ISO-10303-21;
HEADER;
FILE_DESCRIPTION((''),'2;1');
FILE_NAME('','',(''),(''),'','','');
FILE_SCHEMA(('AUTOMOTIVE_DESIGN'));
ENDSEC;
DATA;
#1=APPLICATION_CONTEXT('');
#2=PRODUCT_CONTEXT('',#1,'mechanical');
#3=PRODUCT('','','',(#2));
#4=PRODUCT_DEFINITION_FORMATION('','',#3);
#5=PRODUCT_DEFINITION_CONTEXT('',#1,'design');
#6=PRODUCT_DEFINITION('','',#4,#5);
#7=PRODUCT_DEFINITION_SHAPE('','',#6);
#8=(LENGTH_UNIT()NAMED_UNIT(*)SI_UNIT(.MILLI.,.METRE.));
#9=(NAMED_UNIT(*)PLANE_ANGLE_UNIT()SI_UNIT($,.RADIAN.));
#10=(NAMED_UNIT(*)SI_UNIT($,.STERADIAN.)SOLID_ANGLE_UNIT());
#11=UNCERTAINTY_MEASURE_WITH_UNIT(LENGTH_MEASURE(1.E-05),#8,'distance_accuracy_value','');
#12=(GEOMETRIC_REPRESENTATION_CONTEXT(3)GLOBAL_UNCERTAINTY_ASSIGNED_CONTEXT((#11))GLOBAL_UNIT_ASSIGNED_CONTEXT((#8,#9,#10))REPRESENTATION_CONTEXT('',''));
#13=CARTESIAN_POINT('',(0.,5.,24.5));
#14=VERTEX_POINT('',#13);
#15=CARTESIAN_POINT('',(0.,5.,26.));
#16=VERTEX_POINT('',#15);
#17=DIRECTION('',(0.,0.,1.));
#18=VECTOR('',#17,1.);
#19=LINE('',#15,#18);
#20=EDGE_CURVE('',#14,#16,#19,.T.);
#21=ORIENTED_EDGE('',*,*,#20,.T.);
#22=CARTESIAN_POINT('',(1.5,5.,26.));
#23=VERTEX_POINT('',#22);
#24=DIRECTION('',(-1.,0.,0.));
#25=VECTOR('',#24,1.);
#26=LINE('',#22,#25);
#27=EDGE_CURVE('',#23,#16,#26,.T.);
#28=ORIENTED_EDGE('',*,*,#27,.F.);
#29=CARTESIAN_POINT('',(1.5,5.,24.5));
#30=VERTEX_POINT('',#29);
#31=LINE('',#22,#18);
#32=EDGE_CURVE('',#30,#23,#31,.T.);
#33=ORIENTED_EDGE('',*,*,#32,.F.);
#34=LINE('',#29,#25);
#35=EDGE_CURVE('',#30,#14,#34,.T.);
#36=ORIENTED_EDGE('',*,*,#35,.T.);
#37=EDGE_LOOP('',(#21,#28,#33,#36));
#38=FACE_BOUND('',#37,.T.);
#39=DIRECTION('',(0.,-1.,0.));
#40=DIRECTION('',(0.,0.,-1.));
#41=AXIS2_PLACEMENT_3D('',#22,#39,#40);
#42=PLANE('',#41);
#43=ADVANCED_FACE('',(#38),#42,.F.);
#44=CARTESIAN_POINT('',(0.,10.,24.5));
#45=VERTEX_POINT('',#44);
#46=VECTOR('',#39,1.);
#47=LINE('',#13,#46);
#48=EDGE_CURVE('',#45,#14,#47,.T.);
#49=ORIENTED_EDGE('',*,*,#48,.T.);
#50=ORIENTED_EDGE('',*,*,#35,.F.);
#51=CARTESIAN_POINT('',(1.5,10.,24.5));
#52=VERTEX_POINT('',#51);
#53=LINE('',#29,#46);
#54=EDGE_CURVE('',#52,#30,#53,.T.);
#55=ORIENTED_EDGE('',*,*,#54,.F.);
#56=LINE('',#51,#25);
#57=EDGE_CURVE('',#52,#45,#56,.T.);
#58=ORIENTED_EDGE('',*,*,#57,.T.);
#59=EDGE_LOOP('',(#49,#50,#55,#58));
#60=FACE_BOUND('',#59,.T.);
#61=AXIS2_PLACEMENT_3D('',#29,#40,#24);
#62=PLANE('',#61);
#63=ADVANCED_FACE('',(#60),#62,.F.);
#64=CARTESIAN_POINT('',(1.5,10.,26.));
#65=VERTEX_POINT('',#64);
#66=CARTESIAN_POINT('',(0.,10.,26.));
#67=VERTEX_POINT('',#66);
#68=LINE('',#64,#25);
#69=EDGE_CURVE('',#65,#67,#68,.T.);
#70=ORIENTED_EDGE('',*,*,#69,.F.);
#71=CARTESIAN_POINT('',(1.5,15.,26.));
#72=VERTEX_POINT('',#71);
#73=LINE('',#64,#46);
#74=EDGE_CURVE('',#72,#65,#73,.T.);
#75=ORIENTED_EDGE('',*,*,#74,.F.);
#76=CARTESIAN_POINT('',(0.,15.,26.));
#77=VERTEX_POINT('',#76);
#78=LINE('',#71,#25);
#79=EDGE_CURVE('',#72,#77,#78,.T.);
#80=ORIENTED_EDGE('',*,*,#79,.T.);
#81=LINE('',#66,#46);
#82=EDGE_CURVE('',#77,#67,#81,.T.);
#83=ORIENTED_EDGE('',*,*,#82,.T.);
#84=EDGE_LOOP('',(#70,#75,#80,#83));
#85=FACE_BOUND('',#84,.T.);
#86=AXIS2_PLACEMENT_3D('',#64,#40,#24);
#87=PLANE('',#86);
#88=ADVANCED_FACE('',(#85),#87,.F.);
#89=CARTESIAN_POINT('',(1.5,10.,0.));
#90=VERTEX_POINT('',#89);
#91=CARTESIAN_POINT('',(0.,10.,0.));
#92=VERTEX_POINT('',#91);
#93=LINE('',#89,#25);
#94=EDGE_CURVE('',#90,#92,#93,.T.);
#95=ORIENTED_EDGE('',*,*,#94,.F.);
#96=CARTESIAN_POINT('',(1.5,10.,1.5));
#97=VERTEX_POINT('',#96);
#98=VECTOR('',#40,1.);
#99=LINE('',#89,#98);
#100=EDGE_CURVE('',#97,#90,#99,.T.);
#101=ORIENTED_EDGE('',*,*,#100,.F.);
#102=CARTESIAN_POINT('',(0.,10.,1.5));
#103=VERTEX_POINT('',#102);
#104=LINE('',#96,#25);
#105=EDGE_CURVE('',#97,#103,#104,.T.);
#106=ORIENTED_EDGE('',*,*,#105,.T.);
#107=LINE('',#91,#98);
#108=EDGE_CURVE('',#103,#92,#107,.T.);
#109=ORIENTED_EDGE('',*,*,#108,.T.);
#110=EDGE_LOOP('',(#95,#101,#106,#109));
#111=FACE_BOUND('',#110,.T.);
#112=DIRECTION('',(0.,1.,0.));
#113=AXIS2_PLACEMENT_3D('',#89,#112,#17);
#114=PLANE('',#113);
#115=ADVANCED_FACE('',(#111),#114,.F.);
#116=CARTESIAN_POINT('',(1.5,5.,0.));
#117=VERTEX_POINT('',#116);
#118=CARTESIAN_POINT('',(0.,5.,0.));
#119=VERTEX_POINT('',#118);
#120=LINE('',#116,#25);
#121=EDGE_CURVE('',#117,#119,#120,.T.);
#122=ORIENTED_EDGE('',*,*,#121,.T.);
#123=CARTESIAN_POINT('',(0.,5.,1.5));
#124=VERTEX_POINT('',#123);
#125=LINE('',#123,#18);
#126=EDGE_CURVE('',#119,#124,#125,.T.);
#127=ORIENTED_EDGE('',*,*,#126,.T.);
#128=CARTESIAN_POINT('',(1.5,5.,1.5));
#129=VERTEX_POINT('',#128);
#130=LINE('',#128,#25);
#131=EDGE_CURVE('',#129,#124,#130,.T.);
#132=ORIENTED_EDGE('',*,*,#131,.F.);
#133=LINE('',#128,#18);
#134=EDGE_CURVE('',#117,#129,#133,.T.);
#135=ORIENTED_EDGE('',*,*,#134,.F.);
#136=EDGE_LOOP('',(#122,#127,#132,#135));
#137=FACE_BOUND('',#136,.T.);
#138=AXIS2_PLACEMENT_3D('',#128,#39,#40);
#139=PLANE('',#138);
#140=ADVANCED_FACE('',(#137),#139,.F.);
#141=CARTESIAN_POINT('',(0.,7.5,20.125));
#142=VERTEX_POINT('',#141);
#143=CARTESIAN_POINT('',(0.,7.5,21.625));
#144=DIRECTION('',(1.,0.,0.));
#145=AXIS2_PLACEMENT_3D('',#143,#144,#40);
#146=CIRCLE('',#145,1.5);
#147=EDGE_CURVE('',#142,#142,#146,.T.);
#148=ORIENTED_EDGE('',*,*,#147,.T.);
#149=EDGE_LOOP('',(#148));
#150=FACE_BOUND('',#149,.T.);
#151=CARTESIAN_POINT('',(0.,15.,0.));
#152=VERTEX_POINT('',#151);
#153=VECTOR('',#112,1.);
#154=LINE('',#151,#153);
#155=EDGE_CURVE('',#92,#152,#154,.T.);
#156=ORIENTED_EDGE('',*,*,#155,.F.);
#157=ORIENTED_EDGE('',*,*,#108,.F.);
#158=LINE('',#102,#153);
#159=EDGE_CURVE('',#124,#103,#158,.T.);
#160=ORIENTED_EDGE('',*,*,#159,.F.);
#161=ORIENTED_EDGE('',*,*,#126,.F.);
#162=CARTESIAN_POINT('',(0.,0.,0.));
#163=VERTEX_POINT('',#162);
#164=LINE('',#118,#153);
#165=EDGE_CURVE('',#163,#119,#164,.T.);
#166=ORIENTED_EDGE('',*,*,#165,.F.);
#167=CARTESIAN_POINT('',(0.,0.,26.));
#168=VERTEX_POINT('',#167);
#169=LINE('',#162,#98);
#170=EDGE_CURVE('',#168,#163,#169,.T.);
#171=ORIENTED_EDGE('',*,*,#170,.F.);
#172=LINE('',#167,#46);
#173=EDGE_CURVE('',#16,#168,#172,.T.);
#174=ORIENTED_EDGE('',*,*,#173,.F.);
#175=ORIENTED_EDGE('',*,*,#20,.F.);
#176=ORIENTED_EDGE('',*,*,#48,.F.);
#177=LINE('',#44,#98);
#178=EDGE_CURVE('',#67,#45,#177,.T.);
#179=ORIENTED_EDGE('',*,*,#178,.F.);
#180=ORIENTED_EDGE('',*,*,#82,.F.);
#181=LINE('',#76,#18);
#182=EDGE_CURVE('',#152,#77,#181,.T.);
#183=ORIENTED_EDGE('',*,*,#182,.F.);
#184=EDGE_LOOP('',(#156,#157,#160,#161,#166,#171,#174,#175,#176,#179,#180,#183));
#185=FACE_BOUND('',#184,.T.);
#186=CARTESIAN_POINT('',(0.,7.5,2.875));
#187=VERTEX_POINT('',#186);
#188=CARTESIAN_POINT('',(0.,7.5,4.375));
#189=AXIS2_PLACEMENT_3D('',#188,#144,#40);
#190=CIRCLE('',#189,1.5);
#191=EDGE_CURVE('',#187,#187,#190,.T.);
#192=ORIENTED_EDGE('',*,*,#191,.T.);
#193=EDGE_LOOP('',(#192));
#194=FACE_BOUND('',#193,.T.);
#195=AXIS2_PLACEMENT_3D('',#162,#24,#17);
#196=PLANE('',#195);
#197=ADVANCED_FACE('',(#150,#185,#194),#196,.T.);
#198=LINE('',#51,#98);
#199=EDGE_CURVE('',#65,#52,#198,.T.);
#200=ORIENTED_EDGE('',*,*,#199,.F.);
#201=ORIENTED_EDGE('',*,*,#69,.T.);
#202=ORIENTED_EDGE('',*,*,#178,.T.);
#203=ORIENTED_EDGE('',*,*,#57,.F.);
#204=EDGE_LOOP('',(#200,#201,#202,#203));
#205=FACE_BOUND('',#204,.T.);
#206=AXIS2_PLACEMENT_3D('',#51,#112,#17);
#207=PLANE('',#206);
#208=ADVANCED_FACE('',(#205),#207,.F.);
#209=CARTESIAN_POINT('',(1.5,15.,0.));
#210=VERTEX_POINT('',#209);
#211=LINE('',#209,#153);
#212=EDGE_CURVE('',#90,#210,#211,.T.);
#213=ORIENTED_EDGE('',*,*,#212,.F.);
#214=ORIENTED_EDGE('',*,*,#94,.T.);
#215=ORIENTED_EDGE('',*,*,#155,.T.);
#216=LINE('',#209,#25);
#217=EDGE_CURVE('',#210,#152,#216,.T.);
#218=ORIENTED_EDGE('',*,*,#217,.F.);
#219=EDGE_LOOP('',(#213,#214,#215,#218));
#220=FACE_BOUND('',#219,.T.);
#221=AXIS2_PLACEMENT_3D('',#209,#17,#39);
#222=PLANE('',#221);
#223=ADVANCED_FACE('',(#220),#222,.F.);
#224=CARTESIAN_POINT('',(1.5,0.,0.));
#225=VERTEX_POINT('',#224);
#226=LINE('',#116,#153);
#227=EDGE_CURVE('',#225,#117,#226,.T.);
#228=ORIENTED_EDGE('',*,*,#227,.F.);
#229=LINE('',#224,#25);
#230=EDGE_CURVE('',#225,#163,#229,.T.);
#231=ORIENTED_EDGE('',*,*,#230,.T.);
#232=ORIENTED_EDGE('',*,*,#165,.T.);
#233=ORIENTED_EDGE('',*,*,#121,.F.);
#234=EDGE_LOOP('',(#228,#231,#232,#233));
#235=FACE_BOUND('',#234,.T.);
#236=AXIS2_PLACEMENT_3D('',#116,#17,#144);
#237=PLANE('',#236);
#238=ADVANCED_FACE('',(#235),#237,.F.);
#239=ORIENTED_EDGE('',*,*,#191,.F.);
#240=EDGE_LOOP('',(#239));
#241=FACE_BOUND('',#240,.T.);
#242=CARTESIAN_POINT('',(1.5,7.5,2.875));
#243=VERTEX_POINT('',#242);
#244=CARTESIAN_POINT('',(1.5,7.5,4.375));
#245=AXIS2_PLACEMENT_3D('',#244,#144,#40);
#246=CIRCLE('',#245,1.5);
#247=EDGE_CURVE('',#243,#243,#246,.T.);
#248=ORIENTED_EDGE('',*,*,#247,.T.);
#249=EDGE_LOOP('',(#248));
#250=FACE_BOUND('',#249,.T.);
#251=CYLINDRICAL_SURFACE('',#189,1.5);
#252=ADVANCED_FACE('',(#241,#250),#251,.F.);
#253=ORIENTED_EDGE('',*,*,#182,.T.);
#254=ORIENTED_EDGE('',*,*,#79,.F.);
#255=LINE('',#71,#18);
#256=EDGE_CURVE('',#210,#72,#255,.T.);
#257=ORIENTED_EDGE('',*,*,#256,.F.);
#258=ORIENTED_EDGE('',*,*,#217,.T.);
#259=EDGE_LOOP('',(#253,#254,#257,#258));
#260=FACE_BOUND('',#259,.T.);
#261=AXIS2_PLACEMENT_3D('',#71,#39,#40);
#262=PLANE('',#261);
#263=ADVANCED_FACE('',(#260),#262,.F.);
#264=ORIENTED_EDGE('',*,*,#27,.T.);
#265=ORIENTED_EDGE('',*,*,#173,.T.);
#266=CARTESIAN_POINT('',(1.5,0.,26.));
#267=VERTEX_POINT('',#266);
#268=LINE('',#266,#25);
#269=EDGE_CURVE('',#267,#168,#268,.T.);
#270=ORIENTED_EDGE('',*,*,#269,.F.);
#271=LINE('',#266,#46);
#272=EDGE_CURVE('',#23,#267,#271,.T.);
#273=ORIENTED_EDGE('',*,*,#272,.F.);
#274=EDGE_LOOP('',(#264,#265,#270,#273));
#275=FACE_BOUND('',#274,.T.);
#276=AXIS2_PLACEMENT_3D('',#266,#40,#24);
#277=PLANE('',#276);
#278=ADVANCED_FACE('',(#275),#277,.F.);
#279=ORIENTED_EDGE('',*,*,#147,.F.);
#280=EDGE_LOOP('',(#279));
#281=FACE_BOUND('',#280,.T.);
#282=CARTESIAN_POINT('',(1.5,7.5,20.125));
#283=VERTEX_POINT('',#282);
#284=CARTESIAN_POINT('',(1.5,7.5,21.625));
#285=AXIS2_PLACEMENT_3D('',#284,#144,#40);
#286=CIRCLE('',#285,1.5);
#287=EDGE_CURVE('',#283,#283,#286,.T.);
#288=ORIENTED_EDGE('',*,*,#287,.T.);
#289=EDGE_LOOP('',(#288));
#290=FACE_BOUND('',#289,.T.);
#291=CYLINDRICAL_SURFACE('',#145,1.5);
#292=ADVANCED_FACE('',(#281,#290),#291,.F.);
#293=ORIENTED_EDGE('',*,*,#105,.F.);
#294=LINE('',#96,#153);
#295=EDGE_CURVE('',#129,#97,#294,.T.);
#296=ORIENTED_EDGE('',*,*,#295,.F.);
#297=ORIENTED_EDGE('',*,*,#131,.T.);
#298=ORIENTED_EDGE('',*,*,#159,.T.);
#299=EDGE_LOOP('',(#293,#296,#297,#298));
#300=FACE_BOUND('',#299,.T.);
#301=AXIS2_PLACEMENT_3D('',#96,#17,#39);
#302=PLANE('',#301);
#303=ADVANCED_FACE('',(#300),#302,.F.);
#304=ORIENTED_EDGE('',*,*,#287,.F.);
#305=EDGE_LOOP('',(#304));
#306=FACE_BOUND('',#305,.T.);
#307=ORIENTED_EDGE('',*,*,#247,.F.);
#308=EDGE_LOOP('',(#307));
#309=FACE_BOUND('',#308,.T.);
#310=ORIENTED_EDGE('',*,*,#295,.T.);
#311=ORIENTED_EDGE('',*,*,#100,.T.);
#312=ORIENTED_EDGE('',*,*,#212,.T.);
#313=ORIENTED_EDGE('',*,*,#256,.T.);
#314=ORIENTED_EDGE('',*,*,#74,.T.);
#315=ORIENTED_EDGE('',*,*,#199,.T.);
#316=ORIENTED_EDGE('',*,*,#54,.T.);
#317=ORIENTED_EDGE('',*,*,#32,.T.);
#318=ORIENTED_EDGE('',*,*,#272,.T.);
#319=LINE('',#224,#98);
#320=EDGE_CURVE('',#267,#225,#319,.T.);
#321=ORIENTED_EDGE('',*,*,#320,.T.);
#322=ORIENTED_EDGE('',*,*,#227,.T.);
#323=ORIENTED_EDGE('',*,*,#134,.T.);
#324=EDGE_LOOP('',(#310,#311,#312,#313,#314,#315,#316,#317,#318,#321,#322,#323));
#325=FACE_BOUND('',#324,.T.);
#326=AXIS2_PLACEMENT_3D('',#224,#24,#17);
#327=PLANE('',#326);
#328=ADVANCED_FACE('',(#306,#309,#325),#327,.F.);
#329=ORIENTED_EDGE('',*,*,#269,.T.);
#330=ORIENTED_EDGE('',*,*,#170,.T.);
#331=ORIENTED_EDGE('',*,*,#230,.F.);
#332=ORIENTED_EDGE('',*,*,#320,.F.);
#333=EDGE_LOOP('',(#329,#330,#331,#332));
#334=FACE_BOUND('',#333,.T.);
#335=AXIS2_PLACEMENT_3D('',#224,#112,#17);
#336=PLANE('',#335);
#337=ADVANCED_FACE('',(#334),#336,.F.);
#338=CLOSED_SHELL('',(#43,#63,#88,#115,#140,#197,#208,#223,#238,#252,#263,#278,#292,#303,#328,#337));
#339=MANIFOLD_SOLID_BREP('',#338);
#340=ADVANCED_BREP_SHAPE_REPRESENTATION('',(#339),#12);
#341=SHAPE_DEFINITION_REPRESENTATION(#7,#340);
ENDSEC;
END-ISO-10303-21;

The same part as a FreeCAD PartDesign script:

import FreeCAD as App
import Part
import Sketcher

V = App.Vector


def add_polygon(sketch, points):
    """Adds a closed chain of lines whose ends are joined by coincident constraints."""
    first, n = sketch.GeometryCount, len(points)
    for a, b in zip(points, points[1:] + points[:1]):
        sketch.addGeometry(Part.LineSegment(App.Vector(*a, 0), App.Vector(*b, 0)), False)
    for i in range(n):
        sketch.addConstraint(Sketcher.Constraint("Coincident", first + i, 2, first + (i + 1) % n, 1))

doc = App.newDocument("Part")
body = doc.addObject("PartDesign::Body", "Body")

sketch1 = doc.addObject("Sketcher::SketchObject", "Sketch")
body.addObject(sketch1)
sketch1.AttachmentSupport = (doc.YZ_Plane, [""])
sketch1.MapMode = "FlatFace"
add_polygon(sketch1, [(0, 26), (0, 0), (5, 0), (5, 1.5), (10, 1.5), (10, 0), (15, 0), (15, 26), (10, 26), (10, 24.5), (5, 24.5), (5, 26)])
sketch1.addConstraint([
    Sketcher.Constraint("Vertical", 0),
    Sketcher.Constraint("Horizontal", 1),
    Sketcher.Constraint("Vertical", 2),
    Sketcher.Constraint("Horizontal", 3),
    Sketcher.Constraint("Vertical", 4),
    Sketcher.Constraint("Horizontal", 5),
    Sketcher.Constraint("Vertical", 6),
    Sketcher.Constraint("Horizontal", 7),
    Sketcher.Constraint("Vertical", 8),
    Sketcher.Constraint("Horizontal", 9),
    Sketcher.Constraint("Vertical", 10),
    Sketcher.Constraint("Horizontal", 11),
    Sketcher.Constraint("Coincident", 0, 2, -1, 1),
    Sketcher.Constraint("PointOnObject", 4, 2, -1),
    Sketcher.Constraint("Horizontal", 7, 2, 10, 2),
    Sketcher.Constraint("Vertical", 4, 2, 7, 2),
    Sketcher.Constraint("Vertical", 2, 2, 9, 2),
    Sketcher.Constraint("Equal", 1, 3),
    Sketcher.Constraint("Equal", 3, 5),
    Sketcher.Constraint("Equal", 4, 8),
    Sketcher.Constraint("DistanceX", 1, 1, 1, 2, 5.0),
    Sketcher.Constraint("DistanceY", 0, 2, 0, 1, 26.0),
    Sketcher.Constraint("DistanceY", 2, 1, 2, 2, 1.5),
])
pad1 = doc.addObject("PartDesign::Pad", "Pad")
body.addObject(pad1)
pad1.Profile = sketch1
pad1.Length = 1.5

sketch2 = doc.addObject("Sketcher::SketchObject", "Sketch001")
body.addObject(sketch2)
sketch2.AttachmentSupport = (doc.YZ_Plane, [""])
sketch2.MapMode = "FlatFace"
sketch2.AttachmentOffset = App.Placement(V(0, 0, 1.5), App.Rotation())
sketch2.addGeometry([
    Part.Circle(V(7.5, 21.6, 0), V(0, 0, 1), 1.5),
    Part.Circle(V(7.5, 4.4, 0), V(0, 0, 1), 1.5),
], False)
sketch2.addConstraint([
    Sketcher.Constraint("Equal", 0, 1),
    Sketcher.Constraint("Vertical", 0, 3, 1, 3),
    Sketcher.Constraint("Diameter", 0, 3.0),
    Sketcher.Constraint("DistanceX", -1, 1, 0, 3, 7.5),
    Sketcher.Constraint("DistanceY", 1, 3, 0, 3, 17.25),
    Sketcher.Constraint("DistanceY", -1, 1, 0, 3, 21.625),
])
pocket1 = doc.addObject("PartDesign::Pocket", "Pocket")
body.addObject(pocket1)
pocket1.Profile = sketch2
pocket1.Type = "ThroughAll"

doc.recompute()
